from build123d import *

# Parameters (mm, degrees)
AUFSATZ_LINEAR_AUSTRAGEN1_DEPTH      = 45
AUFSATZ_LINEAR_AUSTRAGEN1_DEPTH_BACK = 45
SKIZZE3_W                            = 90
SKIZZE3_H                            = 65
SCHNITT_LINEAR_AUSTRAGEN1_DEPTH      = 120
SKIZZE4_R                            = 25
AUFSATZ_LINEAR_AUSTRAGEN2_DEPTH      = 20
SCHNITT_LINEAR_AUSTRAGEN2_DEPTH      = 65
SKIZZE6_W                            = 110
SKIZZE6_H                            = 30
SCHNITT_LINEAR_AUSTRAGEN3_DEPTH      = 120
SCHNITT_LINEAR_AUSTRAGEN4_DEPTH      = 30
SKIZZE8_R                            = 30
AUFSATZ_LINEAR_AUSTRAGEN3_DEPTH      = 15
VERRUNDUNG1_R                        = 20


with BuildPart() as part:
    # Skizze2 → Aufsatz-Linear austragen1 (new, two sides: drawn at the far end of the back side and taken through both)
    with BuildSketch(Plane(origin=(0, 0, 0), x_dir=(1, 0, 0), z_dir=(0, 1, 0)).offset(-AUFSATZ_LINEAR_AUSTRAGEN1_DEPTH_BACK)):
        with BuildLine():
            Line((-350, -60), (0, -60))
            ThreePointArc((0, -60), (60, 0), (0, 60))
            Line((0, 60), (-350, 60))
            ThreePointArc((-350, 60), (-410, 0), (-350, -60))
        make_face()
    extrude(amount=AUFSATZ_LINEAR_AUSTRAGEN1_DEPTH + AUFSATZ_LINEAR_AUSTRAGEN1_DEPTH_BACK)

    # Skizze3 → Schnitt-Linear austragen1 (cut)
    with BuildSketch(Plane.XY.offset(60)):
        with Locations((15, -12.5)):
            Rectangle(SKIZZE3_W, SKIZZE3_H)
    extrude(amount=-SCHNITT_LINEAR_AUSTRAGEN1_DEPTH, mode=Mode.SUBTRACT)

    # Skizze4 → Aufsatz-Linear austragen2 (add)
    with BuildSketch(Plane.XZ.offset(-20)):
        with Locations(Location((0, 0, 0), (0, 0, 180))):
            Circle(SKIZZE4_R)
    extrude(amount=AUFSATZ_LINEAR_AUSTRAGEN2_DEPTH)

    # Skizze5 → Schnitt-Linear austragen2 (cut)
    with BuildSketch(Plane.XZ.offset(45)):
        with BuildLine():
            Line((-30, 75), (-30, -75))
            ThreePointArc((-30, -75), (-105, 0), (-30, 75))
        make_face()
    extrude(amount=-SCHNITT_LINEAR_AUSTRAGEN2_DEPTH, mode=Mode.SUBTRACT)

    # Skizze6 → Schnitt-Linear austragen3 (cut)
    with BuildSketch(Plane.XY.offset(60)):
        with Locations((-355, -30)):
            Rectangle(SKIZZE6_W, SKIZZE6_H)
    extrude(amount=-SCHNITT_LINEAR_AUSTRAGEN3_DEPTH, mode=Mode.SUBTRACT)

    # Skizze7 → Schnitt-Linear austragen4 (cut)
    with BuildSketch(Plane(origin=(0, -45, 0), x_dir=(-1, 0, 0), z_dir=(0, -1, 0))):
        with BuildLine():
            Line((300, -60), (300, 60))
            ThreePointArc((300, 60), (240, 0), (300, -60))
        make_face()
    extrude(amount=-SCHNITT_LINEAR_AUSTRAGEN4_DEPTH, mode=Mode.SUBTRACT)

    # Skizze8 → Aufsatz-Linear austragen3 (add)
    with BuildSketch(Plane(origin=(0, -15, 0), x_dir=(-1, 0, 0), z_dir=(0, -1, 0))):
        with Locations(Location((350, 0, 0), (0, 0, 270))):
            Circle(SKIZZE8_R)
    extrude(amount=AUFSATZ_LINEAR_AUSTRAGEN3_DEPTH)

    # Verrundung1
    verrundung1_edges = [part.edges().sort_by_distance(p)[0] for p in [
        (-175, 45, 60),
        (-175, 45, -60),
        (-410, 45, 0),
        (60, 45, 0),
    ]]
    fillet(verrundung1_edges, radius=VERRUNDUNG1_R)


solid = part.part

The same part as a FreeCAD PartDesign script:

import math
import FreeCAD as App
import Part
import Sketcher
from FreeCAD import Vector


def edges_at(feature, points):
    """Names of the edges that pass closest to the given points."""
    edges = feature.Shape.Edges
    near = lambda p: min(range(len(edges)), key=lambda i: edges[i].distToShape(Part.Vertex(*p))[0])
    return sorted({f"Edge{near(p) + 1}" for p in points})

doc = App.newDocument("Part")
params = doc.addObject("Spreadsheet::Sheet", "Params")
for row, (alias, value) in enumerate([
    ("sketch1_radius", "60 mm"),
    ("sketch1_width", "350 mm"),
    ("pad1_length", "45 mm"),
    ("pad1_length2", "45 mm"),
    ("sketch2_width", "90 mm"),
    ("sketch2_height", "65 mm"),
    ("pocket1_length", "120 mm"),
    ("sketch3_diameter", "50 mm"),
    ("pad2_length", "20 mm"),
    ("sketch4_radius", "75 mm"),
    ("pocket2_length", "65 mm"),
    ("sketch5_width", "110 mm"),
    ("sketch5_height", "30 mm"),
    ("pocket3_length", "120 mm"),
    ("sketch6_radius", "60 mm"),
    ("pocket4_length", "30 mm"),
    ("sketch7_diameter", "60 mm"),
    ("pad3_length", "15 mm"),
    ("fillet_radius", "20 mm"),
], start=1):
    params.set(f"A{row}", alias)
    params.set(f"B{row}", "=" + value)
    params.setAlias(f"B{row}", alias)

body = doc.addObject("PartDesign::Body", "Body")

sketch1 = body.newObject("Sketcher::SketchObject", "Sketch")
sketch1.AttachmentSupport = (doc.getObject("XZ_Plane"), [""])
sketch1.MapMode = "FlatFace"
sketch1.addGeometry([
    Part.LineSegment(Vector(-350, 60, 0), Vector(0, 60, 0)),
    Part.ArcOfCircle(Part.Circle(Vector(0, 0, 0), Vector(0, 0, 1), 60), math.radians(-90), math.radians(90)),
    Part.LineSegment(Vector(0, -60, 0), Vector(-350, -60, 0)),
    Part.ArcOfCircle(Part.Circle(Vector(-350, 0, 0), Vector(0, 0, 1), 60), math.radians(90), math.radians(270)),
], False)
sketch1.addConstraint([
    Sketcher.Constraint("Tangent", 0, 2, 1, 2),
    Sketcher.Constraint("Tangent", 1, 1, 2, 1),
    Sketcher.Constraint("Tangent", 2, 2, 3, 2),
    Sketcher.Constraint("Tangent", 3, 1, 0, 1),
    Sketcher.Constraint("Horizontal", 0),
    Sketcher.Constraint("Horizontal", 2),
    Sketcher.Constraint("Coincident", 1, 3, -1, 1),
    Sketcher.Constraint("Radius", 1, 60.0),
    Sketcher.Constraint("DistanceX", 0, 1, 0, 2, 350.0),
])
sketch1.setExpression("Constraints[7]", "Params.sketch1_radius")
sketch1.setExpression("Constraints[8]", "Params.sketch1_width")
pad1 = body.newObject("PartDesign::Pad", "Pad")
pad1.Profile = sketch1
pad1.Type = "TwoLengths"
pad1.setExpression("Length", "Params.pad1_length")
pad1.setExpression("Length2", "Params.pad1_length2")
pad1.Reversed = True

sketch2 = body.newObject("Sketcher::SketchObject", "Sketch001")
sketch2.AttachmentSupport = (doc.getObject("XY_Plane"), [""])
sketch2.MapMode = "FlatFace"
sketch2.AttachmentOffset = App.Placement(Vector(0, 0, 60), App.Rotation())
sketch2.addGeometry([
    Part.LineSegment(Vector(-30, 20, 0), Vector(-30, -45, 0)),
    Part.LineSegment(Vector(-30, -45, 0), Vector(60, -45, 0)),
    Part.LineSegment(Vector(60, -45, 0), Vector(60, 20, 0)),
    Part.LineSegment(Vector(60, 20, 0), Vector(-30, 20, 0)),
], False)
sketch2.addConstraint([
    Sketcher.Constraint("Coincident", 0, 2, 1, 1),
    Sketcher.Constraint("Coincident", 1, 2, 2, 1),
    Sketcher.Constraint("Coincident", 2, 2, 3, 1),
    Sketcher.Constraint("Coincident", 3, 2, 0, 1),
    Sketcher.Constraint("Vertical", 0),
    Sketcher.Constraint("Horizontal", 1),
    Sketcher.Constraint("Vertical", 2),
    Sketcher.Constraint("Horizontal", 3),
    Sketcher.Constraint("DistanceX", 1, 1, 1, 2, 90.0),
    Sketcher.Constraint("DistanceY", 0, 2, 0, 1, 65.0),
    Sketcher.Constraint("DistanceX", 0, 2, -1, 1, 30.0),
    Sketcher.Constraint("DistanceY", 0, 2, -1, 1, 45.0),
])
sketch2.setExpression("Constraints[8]", "Params.sketch2_width")
sketch2.setExpression("Constraints[9]", "Params.sketch2_height")
pocket1 = body.newObject("PartDesign::Pocket", "Pocket")
pocket1.Profile = sketch2
pocket1.setExpression("Length", "Params.pocket1_length")

sketch3 = body.newObject("Sketcher::SketchObject", "Sketch002")
sketch3.AttachmentSupport = (doc.getObject("XZ_Plane"), [""])
sketch3.MapMode = "FlatFace"
sketch3.AttachmentOffset = App.Placement(Vector(0, 0, -20), App.Rotation())
sketch3.addGeometry(Part.Circle(Vector(0, 0, 0), Vector(0, 0, 1), 25), False)
sketch3.addConstraint([
    Sketcher.Constraint("Coincident", 0, 3, -1, 1),
    Sketcher.Constraint("Diameter", 0, 50.0),
])
sketch3.setExpression("Constraints[1]", "Params.sketch3_diameter")
pad2 = body.newObject("PartDesign::Pad", "Pad001")
pad2.Profile = sketch3
pad2.setExpression("Length", "Params.pad2_length")

sketch4 = body.newObject("Sketcher::SketchObject", "Sketch003")
sketch4.AttachmentSupport = (doc.getObject("XZ_Plane"), [""])
sketch4.MapMode = "FlatFace"
sketch4.AttachmentOffset = App.Placement(Vector(0, 0, 45), App.Rotation())
sketch4.addGeometry([
    Part.LineSegment(Vector(-30, -75, 0), Vector(-30, 75, 0)),
    Part.ArcOfCircle(Part.Circle(Vector(-30, 0, 0), Vector(0, 0, 1), 75), math.radians(90), math.radians(270)),
], False)
sketch4.addConstraint([
    Sketcher.Constraint("Coincident", 0, 1, 1, 2),
    Sketcher.Constraint("Coincident", 1, 1, 0, 2),
    Sketcher.Constraint("Vertical", 0),
    Sketcher.Constraint("PointOnObject", 1, 3, -1),
    Sketcher.Constraint("Vertical", 1, 3, 0, 1),
    Sketcher.Constraint("Radius", 1, 75.0),
    Sketcher.Constraint("DistanceX", 1, 3, -1, 1, 30.0),
])
sketch4.setExpression("Constraints[5]", "Params.sketch4_radius")
pocket2 = body.newObject("PartDesign::Pocket", "Pocket001")
pocket2.Profile = sketch4
pocket2.setExpression("Length", "Params.pocket2_length")

sketch5 = body.newObject("Sketcher::SketchObject", "Sketch004")
sketch5.AttachmentSupport = (doc.getObject("XY_Plane"), [""])
sketch5.MapMode = "FlatFace"
sketch5.AttachmentOffset = App.Placement(Vector(0, 0, 60), App.Rotation())
sketch5.addGeometry([
    Part.LineSegment(Vector(-410, -15, 0), Vector(-410, -45, 0)),
    Part.LineSegment(Vector(-410, -45, 0), Vector(-300, -45, 0)),
    Part.LineSegment(Vector(-300, -45, 0), Vector(-300, -15, 0)),
    Part.LineSegment(Vector(-300, -15, 0), Vector(-410, -15, 0)),
], False)
sketch5.addConstraint([
    Sketcher.Constraint("Coincident", 0, 2, 1, 1),
    Sketcher.Constraint("Coincident", 1, 2, 2, 1),
    Sketcher.Constraint("Coincident", 2, 2, 3, 1),
    Sketcher.Constraint("Coincident", 3, 2, 0, 1),
    Sketcher.Constraint("Vertical", 0),
    Sketcher.Constraint("Horizontal", 1),
    Sketcher.Constraint("Vertical", 2),
    Sketcher.Constraint("Horizontal", 3),
    Sketcher.Constraint("DistanceX", 1, 1, 1, 2, 110.0),
    Sketcher.Constraint("DistanceY", 0, 2, 0, 1, 30.0),
    Sketcher.Constraint("DistanceX", 0, 2, -1, 1, 410.0),
    Sketcher.Constraint("DistanceY", 0, 2, -1, 1, 45.0),
])
sketch5.setExpression("Constraints[8]", "Params.sketch5_width")
sketch5.setExpression("Constraints[9]", "Params.sketch5_height")
pocket3 = body.newObject("PartDesign::Pocket", "Pocket002")
pocket3.Profile = sketch5
pocket3.setExpression("Length", "Params.pocket3_length")

sketch6 = body.newObject("Sketcher::SketchObject", "Sketch005")
sketch6.AttachmentSupport = (doc.getObject("XZ_Plane"), [""])
sketch6.MapMode = "FlatFace"
sketch6.AttachmentOffset = App.Placement(Vector(0, 0, 45), App.Rotation())
sketch6.addGeometry([
    Part.LineSegment(Vector(-300, 60, 0), Vector(-300, -60, 0)),
    Part.ArcOfCircle(Part.Circle(Vector(-300, 0, 0), Vector(0, 0, 1), 60), math.radians(-90), math.radians(90)),
], False)
sketch6.addConstraint([
    Sketcher.Constraint("Coincident", 0, 1, 1, 2),
    Sketcher.Constraint("Coincident", 1, 1, 0, 2),
    Sketcher.Constraint("Vertical", 0),
    Sketcher.Constraint("PointOnObject", 1, 3, -1),
    Sketcher.Constraint("Vertical", 1, 3, 0, 1),
    Sketcher.Constraint("Radius", 1, 60.0),
    Sketcher.Constraint("DistanceX", 1, 3, -1, 1, 300.0),
])
sketch6.setExpression("Constraints[5]", "Params.sketch6_radius")
pocket4 = body.newObject("PartDesign::Pocket", "Pocket003")
pocket4.Profile = sketch6
pocket4.setExpression("Length", "Params.pocket4_length")

sketch7 = body.newObject("Sketcher::SketchObject", "Sketch006")
sketch7.AttachmentSupport = (doc.getObject("XZ_Plane"), [""])
sketch7.MapMode = "FlatFace"
sketch7.AttachmentOffset = App.Placement(Vector(0, 0, 15), App.Rotation())
sketch7.addGeometry(Part.Circle(Vector(-350, 0, 0), Vector(0, 0, 1), 30), False)
sketch7.addConstraint([
    Sketcher.Constraint("PointOnObject", 0, 3, -1),
    Sketcher.Constraint("Diameter", 0, 60.0),
    Sketcher.Constraint("DistanceX", 0, 3, -1, 1, 350.0),
])
sketch7.setExpression("Constraints[1]", "Params.sketch7_diameter")
pad3 = body.newObject("PartDesign::Pad", "Pad002")
pad3.Profile = sketch7
pad3.setExpression("Length", "Params.pad3_length")
doc.recompute()

fillet = body.newObject("PartDesign::Fillet", "Fillet")
fillet.Base = (pad3, edges_at(pad3, [
    (-175, 45, 60),
    (-175, 45, -60),
    (-410, 45, 0),
    (60, 45, 0),
]))
fillet.setExpression("Radius", "Params.fillet_radius")

doc.recompute()
